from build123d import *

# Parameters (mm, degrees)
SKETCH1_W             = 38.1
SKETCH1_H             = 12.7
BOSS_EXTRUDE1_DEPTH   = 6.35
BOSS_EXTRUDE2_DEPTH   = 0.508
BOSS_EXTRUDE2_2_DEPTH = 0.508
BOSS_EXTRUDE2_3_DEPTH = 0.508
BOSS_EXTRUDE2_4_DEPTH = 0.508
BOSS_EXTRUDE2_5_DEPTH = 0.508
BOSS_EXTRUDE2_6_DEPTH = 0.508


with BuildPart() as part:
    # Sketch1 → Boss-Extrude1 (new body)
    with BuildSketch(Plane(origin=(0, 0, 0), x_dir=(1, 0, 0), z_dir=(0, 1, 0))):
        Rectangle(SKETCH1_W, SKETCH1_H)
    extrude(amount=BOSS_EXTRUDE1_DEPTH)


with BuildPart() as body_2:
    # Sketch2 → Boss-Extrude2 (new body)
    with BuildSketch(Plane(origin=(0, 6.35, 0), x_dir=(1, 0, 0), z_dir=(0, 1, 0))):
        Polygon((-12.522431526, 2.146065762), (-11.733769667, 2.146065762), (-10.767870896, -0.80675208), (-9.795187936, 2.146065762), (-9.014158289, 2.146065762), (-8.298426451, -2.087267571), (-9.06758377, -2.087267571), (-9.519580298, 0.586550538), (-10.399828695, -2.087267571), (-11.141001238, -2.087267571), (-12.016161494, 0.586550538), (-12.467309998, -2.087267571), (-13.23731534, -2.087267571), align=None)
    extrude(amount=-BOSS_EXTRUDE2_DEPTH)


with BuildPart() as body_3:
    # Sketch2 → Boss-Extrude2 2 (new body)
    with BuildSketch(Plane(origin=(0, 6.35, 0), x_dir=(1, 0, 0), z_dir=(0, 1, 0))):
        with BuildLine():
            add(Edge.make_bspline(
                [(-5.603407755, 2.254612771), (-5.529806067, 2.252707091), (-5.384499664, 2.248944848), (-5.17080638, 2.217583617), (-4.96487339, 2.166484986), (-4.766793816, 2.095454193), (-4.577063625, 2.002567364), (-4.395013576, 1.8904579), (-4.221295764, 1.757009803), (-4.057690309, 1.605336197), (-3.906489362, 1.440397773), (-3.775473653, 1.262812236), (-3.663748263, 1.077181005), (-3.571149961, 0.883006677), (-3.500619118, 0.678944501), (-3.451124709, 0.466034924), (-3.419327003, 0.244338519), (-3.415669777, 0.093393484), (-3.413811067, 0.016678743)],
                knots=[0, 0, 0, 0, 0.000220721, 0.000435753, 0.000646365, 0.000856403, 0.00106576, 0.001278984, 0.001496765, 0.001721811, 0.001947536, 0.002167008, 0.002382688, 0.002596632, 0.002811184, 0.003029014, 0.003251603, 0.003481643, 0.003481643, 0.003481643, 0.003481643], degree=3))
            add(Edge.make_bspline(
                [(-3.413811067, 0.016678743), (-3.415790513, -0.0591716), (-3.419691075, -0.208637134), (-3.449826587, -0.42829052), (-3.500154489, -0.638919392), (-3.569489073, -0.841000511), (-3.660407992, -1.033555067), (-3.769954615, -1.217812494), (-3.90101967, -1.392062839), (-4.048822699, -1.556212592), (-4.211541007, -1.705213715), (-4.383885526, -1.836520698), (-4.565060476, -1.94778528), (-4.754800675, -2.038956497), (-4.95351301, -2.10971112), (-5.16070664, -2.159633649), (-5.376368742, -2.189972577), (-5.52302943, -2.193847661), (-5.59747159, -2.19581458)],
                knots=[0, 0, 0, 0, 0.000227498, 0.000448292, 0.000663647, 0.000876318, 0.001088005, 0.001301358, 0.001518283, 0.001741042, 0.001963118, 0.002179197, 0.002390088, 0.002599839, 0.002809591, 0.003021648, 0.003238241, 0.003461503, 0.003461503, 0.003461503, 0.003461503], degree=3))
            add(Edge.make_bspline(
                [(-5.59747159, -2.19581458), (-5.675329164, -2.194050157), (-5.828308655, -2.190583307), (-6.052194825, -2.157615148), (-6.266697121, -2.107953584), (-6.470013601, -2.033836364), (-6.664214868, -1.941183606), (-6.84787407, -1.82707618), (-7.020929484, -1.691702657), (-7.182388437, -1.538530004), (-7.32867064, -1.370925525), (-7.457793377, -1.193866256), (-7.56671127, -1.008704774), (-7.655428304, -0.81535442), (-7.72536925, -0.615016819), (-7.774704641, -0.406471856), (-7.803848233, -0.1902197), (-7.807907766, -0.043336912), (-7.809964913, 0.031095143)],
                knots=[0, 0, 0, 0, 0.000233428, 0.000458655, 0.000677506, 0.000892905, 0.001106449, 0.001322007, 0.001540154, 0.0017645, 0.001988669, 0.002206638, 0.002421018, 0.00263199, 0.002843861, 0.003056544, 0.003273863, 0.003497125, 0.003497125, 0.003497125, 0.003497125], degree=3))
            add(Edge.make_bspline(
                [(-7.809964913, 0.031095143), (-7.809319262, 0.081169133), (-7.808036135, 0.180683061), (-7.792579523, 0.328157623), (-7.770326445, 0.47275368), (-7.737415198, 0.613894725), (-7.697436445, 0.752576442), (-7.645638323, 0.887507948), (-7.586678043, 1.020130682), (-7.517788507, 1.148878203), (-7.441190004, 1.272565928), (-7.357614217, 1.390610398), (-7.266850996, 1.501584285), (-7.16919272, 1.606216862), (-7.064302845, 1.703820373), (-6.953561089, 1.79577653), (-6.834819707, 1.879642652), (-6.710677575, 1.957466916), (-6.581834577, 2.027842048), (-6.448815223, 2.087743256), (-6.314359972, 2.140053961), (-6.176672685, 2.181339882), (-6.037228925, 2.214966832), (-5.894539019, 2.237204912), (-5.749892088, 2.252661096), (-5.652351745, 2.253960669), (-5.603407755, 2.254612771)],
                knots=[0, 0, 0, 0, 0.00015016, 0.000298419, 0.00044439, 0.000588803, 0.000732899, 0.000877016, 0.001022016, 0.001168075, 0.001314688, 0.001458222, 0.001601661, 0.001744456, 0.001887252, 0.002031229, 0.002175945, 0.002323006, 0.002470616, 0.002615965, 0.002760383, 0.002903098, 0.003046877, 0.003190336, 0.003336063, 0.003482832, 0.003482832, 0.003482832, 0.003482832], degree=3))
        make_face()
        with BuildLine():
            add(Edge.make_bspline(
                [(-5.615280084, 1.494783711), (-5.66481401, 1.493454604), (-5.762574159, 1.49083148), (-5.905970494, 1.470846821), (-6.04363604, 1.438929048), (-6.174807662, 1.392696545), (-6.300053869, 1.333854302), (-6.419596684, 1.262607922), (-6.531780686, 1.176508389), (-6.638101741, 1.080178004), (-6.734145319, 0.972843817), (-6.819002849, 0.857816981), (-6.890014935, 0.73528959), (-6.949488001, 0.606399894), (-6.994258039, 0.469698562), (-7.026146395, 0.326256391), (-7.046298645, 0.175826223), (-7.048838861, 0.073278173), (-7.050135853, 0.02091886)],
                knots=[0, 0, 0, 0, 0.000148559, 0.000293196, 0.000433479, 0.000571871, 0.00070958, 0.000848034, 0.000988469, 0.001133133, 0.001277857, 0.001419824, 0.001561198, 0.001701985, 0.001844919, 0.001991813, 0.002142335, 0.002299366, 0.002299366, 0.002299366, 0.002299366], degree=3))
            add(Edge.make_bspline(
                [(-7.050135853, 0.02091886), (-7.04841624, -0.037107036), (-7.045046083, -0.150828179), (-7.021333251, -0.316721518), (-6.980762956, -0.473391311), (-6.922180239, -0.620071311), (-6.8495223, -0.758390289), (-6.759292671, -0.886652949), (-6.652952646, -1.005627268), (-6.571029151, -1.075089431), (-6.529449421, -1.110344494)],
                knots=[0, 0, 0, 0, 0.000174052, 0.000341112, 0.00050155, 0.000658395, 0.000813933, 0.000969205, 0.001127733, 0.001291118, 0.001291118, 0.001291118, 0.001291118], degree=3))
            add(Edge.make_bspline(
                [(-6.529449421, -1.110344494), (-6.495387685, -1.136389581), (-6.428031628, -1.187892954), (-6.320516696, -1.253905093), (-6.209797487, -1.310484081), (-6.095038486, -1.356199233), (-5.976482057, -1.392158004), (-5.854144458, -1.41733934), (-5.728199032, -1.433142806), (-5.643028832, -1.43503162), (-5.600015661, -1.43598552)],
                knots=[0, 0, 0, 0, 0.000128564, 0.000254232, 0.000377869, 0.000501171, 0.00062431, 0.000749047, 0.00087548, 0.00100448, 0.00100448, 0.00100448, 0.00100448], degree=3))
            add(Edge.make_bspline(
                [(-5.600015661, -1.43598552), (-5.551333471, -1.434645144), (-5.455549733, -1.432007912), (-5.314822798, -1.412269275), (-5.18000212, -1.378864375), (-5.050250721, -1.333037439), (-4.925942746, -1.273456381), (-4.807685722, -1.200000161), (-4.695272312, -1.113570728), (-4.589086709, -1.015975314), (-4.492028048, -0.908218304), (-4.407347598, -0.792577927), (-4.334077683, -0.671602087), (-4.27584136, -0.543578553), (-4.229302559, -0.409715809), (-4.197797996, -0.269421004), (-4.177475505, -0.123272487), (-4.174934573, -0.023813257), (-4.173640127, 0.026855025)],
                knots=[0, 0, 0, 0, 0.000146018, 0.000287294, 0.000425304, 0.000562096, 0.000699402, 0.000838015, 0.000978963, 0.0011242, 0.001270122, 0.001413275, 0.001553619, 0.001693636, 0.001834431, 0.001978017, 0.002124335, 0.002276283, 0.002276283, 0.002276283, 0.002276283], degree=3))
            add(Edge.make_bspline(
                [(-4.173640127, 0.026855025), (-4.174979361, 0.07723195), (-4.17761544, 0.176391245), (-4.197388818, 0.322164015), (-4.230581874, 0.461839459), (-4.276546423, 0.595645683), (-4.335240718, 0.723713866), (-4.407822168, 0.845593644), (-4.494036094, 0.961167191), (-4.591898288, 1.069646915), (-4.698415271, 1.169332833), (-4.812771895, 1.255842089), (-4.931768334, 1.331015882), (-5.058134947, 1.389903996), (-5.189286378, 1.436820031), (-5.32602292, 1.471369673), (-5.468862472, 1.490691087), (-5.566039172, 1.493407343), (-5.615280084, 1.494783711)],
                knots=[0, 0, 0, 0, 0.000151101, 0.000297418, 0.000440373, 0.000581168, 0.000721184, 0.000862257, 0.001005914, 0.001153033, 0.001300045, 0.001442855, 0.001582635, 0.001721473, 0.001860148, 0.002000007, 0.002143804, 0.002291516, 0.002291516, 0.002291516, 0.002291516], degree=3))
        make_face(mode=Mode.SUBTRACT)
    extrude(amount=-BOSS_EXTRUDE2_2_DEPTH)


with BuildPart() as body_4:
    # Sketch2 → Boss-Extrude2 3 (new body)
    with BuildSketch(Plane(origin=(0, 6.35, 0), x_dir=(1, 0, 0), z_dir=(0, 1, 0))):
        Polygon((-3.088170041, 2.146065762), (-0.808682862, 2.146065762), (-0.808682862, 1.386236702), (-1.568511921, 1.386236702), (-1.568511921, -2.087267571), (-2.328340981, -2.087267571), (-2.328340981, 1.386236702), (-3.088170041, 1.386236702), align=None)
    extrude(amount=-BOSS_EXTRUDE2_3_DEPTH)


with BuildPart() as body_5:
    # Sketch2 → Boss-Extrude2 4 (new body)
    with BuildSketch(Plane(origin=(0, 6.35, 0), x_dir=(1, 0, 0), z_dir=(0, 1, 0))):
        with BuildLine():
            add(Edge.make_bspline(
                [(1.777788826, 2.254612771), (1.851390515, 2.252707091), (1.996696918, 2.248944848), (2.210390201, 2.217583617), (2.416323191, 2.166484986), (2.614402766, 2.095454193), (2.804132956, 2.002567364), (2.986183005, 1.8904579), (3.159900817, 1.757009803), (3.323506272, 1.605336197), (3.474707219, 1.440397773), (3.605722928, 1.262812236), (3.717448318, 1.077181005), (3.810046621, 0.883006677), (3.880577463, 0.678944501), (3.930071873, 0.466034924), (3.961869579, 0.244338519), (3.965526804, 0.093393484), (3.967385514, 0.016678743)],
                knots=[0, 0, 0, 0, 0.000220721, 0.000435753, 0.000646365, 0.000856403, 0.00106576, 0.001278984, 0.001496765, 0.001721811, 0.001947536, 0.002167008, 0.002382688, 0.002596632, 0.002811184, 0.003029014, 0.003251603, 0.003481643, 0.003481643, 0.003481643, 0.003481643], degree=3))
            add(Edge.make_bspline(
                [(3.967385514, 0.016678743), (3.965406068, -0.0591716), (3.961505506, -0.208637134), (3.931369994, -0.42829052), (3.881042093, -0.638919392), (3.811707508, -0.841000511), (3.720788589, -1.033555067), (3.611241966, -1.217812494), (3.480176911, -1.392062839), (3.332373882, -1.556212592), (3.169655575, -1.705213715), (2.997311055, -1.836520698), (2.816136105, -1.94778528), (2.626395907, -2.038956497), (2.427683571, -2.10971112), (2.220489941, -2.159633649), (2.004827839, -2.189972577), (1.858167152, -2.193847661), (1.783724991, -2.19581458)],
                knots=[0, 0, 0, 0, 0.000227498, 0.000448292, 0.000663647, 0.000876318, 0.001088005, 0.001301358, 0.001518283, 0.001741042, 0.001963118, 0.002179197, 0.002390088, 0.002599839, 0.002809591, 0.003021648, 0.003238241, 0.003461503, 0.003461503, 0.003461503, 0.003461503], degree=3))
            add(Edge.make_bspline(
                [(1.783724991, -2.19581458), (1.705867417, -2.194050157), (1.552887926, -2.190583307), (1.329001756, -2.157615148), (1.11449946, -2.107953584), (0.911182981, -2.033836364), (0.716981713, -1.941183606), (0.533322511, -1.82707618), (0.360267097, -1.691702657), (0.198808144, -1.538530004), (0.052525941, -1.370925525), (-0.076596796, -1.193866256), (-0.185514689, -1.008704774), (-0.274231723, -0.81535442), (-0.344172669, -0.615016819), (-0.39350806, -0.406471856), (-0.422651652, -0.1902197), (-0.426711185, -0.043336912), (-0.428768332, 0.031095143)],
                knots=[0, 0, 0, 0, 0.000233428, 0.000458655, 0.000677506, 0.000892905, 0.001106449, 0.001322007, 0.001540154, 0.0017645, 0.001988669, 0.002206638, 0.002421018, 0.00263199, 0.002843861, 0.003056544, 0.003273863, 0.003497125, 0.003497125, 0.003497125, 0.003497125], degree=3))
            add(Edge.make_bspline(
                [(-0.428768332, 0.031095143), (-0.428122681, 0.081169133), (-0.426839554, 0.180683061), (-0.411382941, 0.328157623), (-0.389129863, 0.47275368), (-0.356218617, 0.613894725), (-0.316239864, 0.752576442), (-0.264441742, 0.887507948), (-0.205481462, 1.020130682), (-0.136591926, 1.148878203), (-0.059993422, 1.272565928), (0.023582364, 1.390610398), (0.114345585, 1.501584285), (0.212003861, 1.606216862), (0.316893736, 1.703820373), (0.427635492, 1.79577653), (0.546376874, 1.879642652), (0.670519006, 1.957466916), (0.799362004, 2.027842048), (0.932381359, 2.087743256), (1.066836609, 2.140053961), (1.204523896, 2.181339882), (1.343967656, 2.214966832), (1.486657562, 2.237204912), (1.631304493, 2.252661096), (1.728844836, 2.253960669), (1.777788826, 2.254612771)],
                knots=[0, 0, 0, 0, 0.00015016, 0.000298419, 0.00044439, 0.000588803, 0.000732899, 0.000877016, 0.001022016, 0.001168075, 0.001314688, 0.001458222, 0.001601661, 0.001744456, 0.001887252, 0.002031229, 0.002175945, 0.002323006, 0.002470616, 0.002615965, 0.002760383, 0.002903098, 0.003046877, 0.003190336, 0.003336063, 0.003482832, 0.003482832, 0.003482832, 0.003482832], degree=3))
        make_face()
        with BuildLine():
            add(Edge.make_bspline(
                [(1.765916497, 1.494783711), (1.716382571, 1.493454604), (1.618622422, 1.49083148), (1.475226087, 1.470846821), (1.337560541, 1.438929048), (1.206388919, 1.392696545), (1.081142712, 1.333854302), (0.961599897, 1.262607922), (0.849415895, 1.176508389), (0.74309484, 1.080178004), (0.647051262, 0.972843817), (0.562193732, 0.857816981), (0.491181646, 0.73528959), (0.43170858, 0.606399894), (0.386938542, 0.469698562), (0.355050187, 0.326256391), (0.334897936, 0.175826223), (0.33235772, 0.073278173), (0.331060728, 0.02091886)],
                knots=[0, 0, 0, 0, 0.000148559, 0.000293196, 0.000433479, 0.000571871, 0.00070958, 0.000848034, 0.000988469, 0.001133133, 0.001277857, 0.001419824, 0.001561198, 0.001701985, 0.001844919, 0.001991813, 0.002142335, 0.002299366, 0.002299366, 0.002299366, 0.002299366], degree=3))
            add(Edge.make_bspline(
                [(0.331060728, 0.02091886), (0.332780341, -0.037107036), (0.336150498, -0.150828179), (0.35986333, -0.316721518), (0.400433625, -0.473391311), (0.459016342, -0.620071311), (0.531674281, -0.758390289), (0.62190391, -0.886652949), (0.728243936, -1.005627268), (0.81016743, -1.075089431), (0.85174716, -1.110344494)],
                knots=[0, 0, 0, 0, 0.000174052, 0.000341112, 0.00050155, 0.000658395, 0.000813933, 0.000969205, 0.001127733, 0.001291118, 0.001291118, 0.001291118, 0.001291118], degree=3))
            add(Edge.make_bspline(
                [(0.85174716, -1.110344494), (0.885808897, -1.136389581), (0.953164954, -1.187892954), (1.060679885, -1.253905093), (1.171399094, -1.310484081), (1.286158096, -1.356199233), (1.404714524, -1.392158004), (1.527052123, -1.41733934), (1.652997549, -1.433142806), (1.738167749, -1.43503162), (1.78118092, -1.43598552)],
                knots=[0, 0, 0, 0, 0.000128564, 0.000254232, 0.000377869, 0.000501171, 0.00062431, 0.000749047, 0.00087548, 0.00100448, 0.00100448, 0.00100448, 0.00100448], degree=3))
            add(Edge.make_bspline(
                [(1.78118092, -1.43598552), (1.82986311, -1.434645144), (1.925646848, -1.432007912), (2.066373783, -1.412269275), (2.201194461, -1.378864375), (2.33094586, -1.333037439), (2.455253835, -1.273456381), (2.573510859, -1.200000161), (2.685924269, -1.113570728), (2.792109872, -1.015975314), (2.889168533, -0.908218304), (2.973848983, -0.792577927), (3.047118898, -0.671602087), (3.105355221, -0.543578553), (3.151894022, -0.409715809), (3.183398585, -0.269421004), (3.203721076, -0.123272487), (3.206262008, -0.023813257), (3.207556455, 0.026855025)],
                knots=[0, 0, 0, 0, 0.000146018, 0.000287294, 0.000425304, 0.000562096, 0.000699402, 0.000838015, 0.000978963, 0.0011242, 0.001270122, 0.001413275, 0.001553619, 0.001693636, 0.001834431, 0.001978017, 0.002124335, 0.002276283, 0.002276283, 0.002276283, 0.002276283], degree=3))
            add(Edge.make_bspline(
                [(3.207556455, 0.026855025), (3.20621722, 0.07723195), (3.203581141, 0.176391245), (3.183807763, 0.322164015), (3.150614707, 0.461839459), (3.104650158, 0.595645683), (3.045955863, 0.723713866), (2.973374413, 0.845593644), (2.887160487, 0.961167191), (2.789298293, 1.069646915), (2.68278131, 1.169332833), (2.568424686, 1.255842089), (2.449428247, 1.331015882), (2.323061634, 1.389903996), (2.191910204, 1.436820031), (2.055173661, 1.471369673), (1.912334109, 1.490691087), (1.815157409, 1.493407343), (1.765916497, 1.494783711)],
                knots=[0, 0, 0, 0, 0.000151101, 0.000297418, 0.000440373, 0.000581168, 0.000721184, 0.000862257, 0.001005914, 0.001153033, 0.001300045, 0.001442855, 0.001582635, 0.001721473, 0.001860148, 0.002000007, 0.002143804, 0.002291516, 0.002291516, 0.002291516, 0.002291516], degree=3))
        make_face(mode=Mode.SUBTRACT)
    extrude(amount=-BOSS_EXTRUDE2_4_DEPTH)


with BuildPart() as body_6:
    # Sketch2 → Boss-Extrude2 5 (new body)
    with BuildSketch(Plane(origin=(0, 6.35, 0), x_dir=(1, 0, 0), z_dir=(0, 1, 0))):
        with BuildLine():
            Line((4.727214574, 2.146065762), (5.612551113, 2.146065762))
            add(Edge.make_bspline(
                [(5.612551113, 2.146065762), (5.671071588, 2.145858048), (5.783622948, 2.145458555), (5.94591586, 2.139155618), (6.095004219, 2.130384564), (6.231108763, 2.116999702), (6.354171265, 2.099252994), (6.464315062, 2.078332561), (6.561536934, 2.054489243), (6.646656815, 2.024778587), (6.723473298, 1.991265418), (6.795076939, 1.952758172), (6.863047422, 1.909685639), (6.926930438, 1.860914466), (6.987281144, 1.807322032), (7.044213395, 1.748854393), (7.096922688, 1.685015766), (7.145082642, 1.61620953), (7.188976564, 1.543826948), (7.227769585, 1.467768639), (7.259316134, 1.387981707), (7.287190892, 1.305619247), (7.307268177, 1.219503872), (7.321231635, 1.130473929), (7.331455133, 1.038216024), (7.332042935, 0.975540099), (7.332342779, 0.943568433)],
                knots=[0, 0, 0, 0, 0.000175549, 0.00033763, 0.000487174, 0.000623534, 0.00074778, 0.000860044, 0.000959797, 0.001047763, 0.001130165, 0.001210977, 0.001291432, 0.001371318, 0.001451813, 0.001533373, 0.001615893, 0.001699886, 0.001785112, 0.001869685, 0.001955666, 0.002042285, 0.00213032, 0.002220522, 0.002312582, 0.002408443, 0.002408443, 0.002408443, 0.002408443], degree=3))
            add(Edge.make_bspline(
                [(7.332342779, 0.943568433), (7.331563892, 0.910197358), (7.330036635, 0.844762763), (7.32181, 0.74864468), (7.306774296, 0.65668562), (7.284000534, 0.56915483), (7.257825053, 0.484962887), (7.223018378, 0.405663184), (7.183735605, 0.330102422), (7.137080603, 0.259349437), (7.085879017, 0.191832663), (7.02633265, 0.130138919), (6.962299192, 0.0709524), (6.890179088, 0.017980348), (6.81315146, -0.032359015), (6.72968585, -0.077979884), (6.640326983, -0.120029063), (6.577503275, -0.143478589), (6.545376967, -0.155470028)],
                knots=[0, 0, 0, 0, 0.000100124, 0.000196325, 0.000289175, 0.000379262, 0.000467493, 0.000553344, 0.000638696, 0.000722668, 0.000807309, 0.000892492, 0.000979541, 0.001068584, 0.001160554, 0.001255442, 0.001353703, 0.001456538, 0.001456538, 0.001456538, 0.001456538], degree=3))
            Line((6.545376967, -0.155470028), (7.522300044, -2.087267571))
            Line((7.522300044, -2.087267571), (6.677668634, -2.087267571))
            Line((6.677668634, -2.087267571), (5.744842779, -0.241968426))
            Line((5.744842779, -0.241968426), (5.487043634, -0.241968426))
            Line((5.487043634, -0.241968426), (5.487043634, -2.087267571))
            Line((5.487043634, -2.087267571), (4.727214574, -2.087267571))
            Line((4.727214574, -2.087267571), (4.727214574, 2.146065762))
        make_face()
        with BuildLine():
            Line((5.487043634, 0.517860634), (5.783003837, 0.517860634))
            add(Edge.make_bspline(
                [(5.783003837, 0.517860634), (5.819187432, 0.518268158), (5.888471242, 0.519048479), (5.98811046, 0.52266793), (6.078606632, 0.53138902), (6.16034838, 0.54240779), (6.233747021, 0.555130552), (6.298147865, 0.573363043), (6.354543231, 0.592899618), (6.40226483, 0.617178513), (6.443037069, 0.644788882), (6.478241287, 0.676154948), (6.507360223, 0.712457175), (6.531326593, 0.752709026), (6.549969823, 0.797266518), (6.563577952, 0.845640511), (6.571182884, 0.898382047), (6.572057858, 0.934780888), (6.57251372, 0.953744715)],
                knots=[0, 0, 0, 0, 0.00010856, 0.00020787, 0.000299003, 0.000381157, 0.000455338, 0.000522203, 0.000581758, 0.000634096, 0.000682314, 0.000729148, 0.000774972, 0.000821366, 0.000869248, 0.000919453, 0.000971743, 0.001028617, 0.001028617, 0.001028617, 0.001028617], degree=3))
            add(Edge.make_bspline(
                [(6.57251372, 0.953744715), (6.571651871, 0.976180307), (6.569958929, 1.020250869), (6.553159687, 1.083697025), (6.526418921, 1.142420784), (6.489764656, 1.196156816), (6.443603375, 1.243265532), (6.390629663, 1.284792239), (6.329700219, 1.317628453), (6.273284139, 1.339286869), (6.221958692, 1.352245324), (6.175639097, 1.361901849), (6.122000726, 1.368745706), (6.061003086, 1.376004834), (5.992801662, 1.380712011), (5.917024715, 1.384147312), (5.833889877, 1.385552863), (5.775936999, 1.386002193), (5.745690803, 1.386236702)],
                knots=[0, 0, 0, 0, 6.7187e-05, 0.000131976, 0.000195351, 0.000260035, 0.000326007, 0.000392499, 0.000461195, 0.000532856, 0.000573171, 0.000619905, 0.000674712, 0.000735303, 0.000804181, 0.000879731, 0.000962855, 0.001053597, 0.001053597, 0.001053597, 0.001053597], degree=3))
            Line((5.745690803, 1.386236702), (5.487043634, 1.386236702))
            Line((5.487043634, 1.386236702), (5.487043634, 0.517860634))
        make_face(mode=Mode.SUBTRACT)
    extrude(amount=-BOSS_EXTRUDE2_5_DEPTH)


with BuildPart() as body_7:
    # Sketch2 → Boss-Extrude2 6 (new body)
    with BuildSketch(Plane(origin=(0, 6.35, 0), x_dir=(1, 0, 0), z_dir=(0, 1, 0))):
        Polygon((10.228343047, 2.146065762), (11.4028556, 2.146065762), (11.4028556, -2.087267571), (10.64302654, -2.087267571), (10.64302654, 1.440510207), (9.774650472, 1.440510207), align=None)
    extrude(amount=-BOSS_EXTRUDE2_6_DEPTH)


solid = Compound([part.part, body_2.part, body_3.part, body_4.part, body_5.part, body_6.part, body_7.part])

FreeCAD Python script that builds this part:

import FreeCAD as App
import Part
import Sketcher

V = App.Vector
Q = App.Units.Quantity

doc = App.newDocument("Part")
params = doc.addObject("Spreadsheet::Sheet", "Params")
for row, (alias, value) in enumerate([
    ("sketch1_width", "1.5 in"),
    ("sketch1_height", "0.5 in"),
    ("pad1_length", "0.25 in"),
    ("pad2_length", "0.02 in"),
    ("pad3_length", "0.02 in"),
    ("pad4_length", "0.02 in"),
    ("pad5_length", "0.02 in"),
    ("pad6_length", "0.02 in"),
    ("pad7_length", "0.02 in"),
], start=1):
    params.set(f"A{row}", alias)
    params.set(f"B{row}", "=" + value)
    params.setAlias(f"B{row}", alias)

body = doc.addObject("PartDesign::Body", "Body")

sketch1 = doc.addObject("Sketcher::SketchObject", "Sketch")
body.addObject(sketch1)
sketch1.AttachmentSupport = (doc.XZ_Plane, [""])
sketch1.MapMode = "FlatFace"
sketch1.addGeometry([
    Part.LineSegment(V(-19, -6, 0), V(-19, 6, 0)),
    Part.LineSegment(V(-19, 6, 0), V(19, 6, 0)),
    Part.LineSegment(V(19, 6, 0), V(19, -6, 0)),
    Part.LineSegment(V(19, -6, 0), V(-19, -6, 0)),
], False)
sketch1.addConstraint([
    Sketcher.Constraint("Coincident", 0, 2, 1, 1),
    Sketcher.Constraint("Coincident", 1, 2, 2, 1),
    Sketcher.Constraint("Coincident", 2, 2, 3, 1),
    Sketcher.Constraint("Coincident", 3, 2, 0, 1),
    Sketcher.Constraint("Vertical", 0),
    Sketcher.Constraint("Horizontal", 1),
    Sketcher.Constraint("Vertical", 2),
    Sketcher.Constraint("Horizontal", 3),
    Sketcher.Constraint("Symmetric", 0, 2, 2, 2, -1, 1),
    Sketcher.Constraint("DistanceX", 1, 1, 1, 2, Q("1.5 in")),
    Sketcher.Constraint("DistanceY", 0, 1, 0, 2, Q("0.5 in")),
])
sketch1.setExpression("Constraints[9]", "Params.sketch1_width")
sketch1.setExpression("Constraints[10]", "Params.sketch1_height")
pad1 = doc.addObject("PartDesign::Pad", "Pad")
body.addObject(pad1)
pad1.Profile = sketch1
pad1.setExpression("Length", "Params.pad1_length")
pad1.Reversed = True
body2 = doc.addObject("PartDesign::Body", "Body001")

sketch2 = doc.addObject("Sketcher::SketchObject", "Sketch001")
body2.addObject(sketch2)
sketch2.AttachmentSupport = (doc.getObject("XZ_Plane001"), [""])
sketch2.MapMode = "FlatFace"
sketch2.AttachmentOffset = App.Placement(V(0, 0, -0.25 * 25.4), App.Rotation())
sketch2.addGeometry([
    Part.LineSegment(V(-11.7, -2.1, 0), V(-12.5, -2.1, 0)),
    Part.LineSegment(V(-12.5, -2.1, 0), V(-13.2, 2.1, 0)),
    Part.LineSegment(V(-13.2, 2.1, 0), V(-12.5, 2.1, 0)),
    Part.LineSegment(V(-12.5, 2.1, 0), V(-12, -0.6, 0)),
    Part.LineSegment(V(-12, -0.6, 0), V(-11.1, 2.1, 0)),
    Part.LineSegment(V(-11.1, 2.1, 0), V(-10.4, 2.1, 0)),
    Part.LineSegment(V(-10.4, 2.1, 0), V(-9.5, -0.6, 0)),
    Part.LineSegment(V(-9.5, -0.6, 0), V(-9.1, 2.1, 0)),
    Part.LineSegment(V(-9.1, 2.1, 0), V(-8.3, 2.1, 0)),
    Part.LineSegment(V(-8.3, 2.1, 0), V(-9, -2.1, 0)),
    Part.LineSegment(V(-9, -2.1, 0), V(-9.8, -2.1, 0)),
    Part.LineSegment(V(-9.8, -2.1, 0), V(-10.8, 0.8, 0)),
    Part.LineSegment(V(-10.8, 0.8, 0), V(-11.7, -2.1, 0)),
], False)
sketch2.addConstraint([
    Sketcher.Constraint("Coincident", 0, 2, 1, 1),
    Sketcher.Constraint("Coincident", 1, 2, 2, 1),
    Sketcher.Constraint("Coincident", 2, 2, 3, 1),
    Sketcher.Constraint("Coincident", 3, 2, 4, 1),
    Sketcher.Constraint("Coincident", 4, 2, 5, 1),
    Sketcher.Constraint("Coincident", 5, 2, 6, 1),
    Sketcher.Constraint("Coincident", 6, 2, 7, 1),
    Sketcher.Constraint("Coincident", 7, 2, 8, 1),
    Sketcher.Constraint("Coincident", 8, 2, 9, 1),
    Sketcher.Constraint("Coincident", 9, 2, 10, 1),
    Sketcher.Constraint("Coincident", 10, 2, 11, 1),
    Sketcher.Constraint("Coincident", 11, 2, 12, 1),
    Sketcher.Constraint("Coincident", 12, 2, 0, 1),
    Sketcher.Constraint("Horizontal", 0),
    Sketcher.Constraint("Horizontal", 2),
    Sketcher.Constraint("Horizontal", 5),
    Sketcher.Constraint("Horizontal", 8),
    Sketcher.Constraint("Horizontal", 10),
    Sketcher.Constraint("Horizontal", 2, 2, 4, 2),
    Sketcher.Constraint("Horizontal", 3, 2, 6, 2),
    Sketcher.Constraint("Horizontal", 5, 2, 7, 2),
    Sketcher.Constraint("Horizontal", 0, 2, 9, 2),
    Sketcher.Constraint("Distance", 4, 2.813398),
    Sketcher.Constraint("DistanceX", 0, 2, 0, 1, 0.788662),
    Sketcher.Constraint("DistanceX", 10, 2, 10, 1, 0.78103),
    Sketcher.Constraint("DistanceX", 4, 2, -1, 1, 11.141001),
    Sketcher.Constraint("Distance", 1, 4.29327),
    Sketcher.Constraint("Distance", 3, 2.711612),
    Sketcher.Constraint("Distance", 9, 4.293412),
    Sketcher.Constraint("Distance", 12, 3.106782),
    Sketcher.Constraint("DistanceX", 2, 1, 2, 2, 0.770005),
    Sketcher.Constraint("DistanceX", 5, 1, 5, 2, 0.741173),
    Sketcher.Constraint("DistanceX", 8, 1, 8, 2, 0.769157),
    Sketcher.Constraint("DistanceX", 0, 2, -1, 1, 12.522432),
    Sketcher.Constraint("DistanceX", 2, 2, -1, 1, 12.46731),
    Sketcher.Constraint("DistanceY", 3, 2, -1, 1, 0.586551),
    Sketcher.Constraint("DistanceX", 6, 2, -1, 1, 9.51958),
    Sketcher.Constraint("DistanceX", 9, 2, -1, 1, 9.014158),
    Sketcher.Constraint("DistanceX", 11, 2, -1, 1, 10.767871),
])
pad2 = doc.addObject("PartDesign::Pad", "Pad001")
body2.addObject(pad2)
pad2.Profile = sketch2
pad2.setExpression("Length", "Params.pad2_length")
body3 = doc.addObject("PartDesign::Body", "Body002")

sketch3 = doc.addObject("Sketcher::SketchObject", "Sketch002")
body3.addObject(sketch3)
sketch3.AttachmentSupport = (doc.getObject("XZ_Plane002"), [""])
sketch3.MapMode = "FlatFace"
sketch3.AttachmentOffset = App.Placement(V(0, 0, -0.25 * 25.4), App.Rotation())
sketch3.addGeometry([
    Part.BSplineCurve([V(-5.603408, -2.254613, 0), V(-5.529806, -2.252707, 0), V(-5.3845, -2.248945, 0), V(-5.170806, -2.217584, 0), V(-4.964873, -2.166485, 0), V(-4.766794, -2.095454, 0), V(-4.577064, -2.002567, 0), V(-4.395014, -1.890458, 0), V(-4.221296, -1.75701, 0), V(-4.05769, -1.605336, 0), V(-3.906489, -1.440398, 0), V(-3.775474, -1.262812, 0), V(-3.663748, -1.077181, 0), V(-3.57115, -0.883007, 0), V(-3.500619, -0.678945, 0), V(-3.451125, -0.466035, 0), V(-3.419327, -0.244339, 0), V(-3.41567, -0.093393, 0), V(-3.413811, -0.016679, 0)], [4, 1, 1, 1, 1, 1, 1, 1, 1, 1, 1, 1, 1, 1, 1, 1, 4], [0, 0.000220721, 0.000435753, 0.000646365, 0.000856403, 0.00106576, 0.001278984, 0.001496765, 0.001721811, 0.001947536, 0.002167008, 0.002382688, 0.002596632, 0.002811184, 0.003029014, 0.003251603, 0.003481643], False, 3, [1, 1, 1, 1, 1, 1, 1, 1, 1, 1, 1, 1, 1, 1, 1, 1, 1, 1, 1], False),
    Part.BSplineCurve([V(-7.809965, -0.031095, 0), V(-7.809319, -0.081169, 0), V(-7.808036, -0.180683, 0), V(-7.79258, -0.328158, 0), V(-7.770326, -0.472754, 0), V(-7.737415, -0.613895, 0), V(-7.697436, -0.752576, 0), V(-7.645638, -0.887508, 0), V(-7.586678, -1.020131, 0), V(-7.517789, -1.148878, 0), V(-7.44119, -1.272566, 0), V(-7.357614, -1.39061, 0), V(-7.266851, -1.501584, 0), V(-7.169193, -1.606217, 0), V(-7.064303, -1.70382, 0), V(-6.953561, -1.795777, 0), V(-6.83482, -1.879643, 0), V(-6.710678, -1.957467, 0), V(-6.581835, -2.027842, 0), V(-6.448815, -2.087743, 0), V(-6.31436, -2.140054, 0), V(-6.176673, -2.18134, 0), V(-6.037229, -2.214967, 0), V(-5.894539, -2.237205, 0), V(-5.749892, -2.252661, 0), V(-5.652352, -2.253961, 0), V(-5.603408, -2.254613, 0)], [4, 1, 1, 1, 1, 1, 1, 1, 1, 1, 1, 1, 1, 1, 1, 1, 1, 1, 1, 1, 1, 1, 1, 1, 4], [0, 0.00015016, 0.000298419, 0.00044439, 0.000588803, 0.000732899, 0.000877016, 0.001022016, 0.001168075, 0.001314688, 0.001458222, 0.001601661, 0.001744456, 0.001887252, 0.002031229, 0.002175945, 0.002323006, 0.002470616, 0.002615965, 0.002760383, 0.002903098, 0.003046877, 0.003190336, 0.003336063, 0.003482832], False, 3, [1, 1, 1, 1, 1, 1, 1, 1, 1, 1, 1, 1, 1, 1, 1, 1, 1, 1, 1, 1, 1, 1, 1, 1, 1, 1, 1], False),
    Part.BSplineCurve([V(-5.597472, 2.195815, 0), V(-5.675329, 2.19405, 0), V(-5.828309, 2.190583, 0), V(-6.052195, 2.157615, 0), V(-6.266697, 2.107954, 0), V(-6.470014, 2.033836, 0), V(-6.664215, 1.941184, 0), V(-6.847874, 1.827076, 0), V(-7.020929, 1.691703, 0), V(-7.182388, 1.53853, 0), V(-7.328671, 1.370926, 0), V(-7.457793, 1.193866, 0), V(-7.566711, 1.008705, 0), V(-7.655428, 0.815354, 0), V(-7.725369, 0.615017, 0), V(-7.774705, 0.406472, 0), V(-7.803848, 0.19022, 0), V(-7.807908, 0.043337, 0), V(-7.809965, -0.031095, 0)], [4, 1, 1, 1, 1, 1, 1, 1, 1, 1, 1, 1, 1, 1, 1, 1, 4], [0, 0.000233428, 0.000458655, 0.000677506, 0.000892905, 0.001106449, 0.001322007, 0.001540154, 0.0017645, 0.001988669, 0.002206638, 0.002421018, 0.00263199, 0.002843861, 0.003056544, 0.003273863, 0.003497125], False, 3, [1, 1, 1, 1, 1, 1, 1, 1, 1, 1, 1, 1, 1, 1, 1, 1, 1, 1, 1], False),
    Part.BSplineCurve([V(-3.413811, -0.016679, 0), V(-3.415791, 0.059172, 0), V(-3.419691, 0.208637, 0), V(-3.449827, 0.428291, 0), V(-3.500154, 0.638919, 0), V(-3.569489, 0.841001, 0), V(-3.660408, 1.033555, 0), V(-3.769955, 1.217812, 0), V(-3.90102, 1.392063, 0), V(-4.048823, 1.556213, 0), V(-4.211541, 1.705214, 0), V(-4.383886, 1.836521, 0), V(-4.56506, 1.947785, 0), V(-4.754801, 2.038956, 0), V(-4.953513, 2.109711, 0), V(-5.160707, 2.159634, 0), V(-5.376369, 2.189973, 0), V(-5.523029, 2.193848, 0), V(-5.597472, 2.195815, 0)], [4, 1, 1, 1, 1, 1, 1, 1, 1, 1, 1, 1, 1, 1, 1, 1, 4], [0, 0.000227498, 0.000448292, 0.000663647, 0.000876318, 0.001088005, 0.001301358, 0.001518283, 0.001741042, 0.001963118, 0.002179197, 0.002390088, 0.002599839, 0.002809591, 0.003021648, 0.003238241, 0.003461503], False, 3, [1, 1, 1, 1, 1, 1, 1, 1, 1, 1, 1, 1, 1, 1, 1, 1, 1, 1, 1], False),
    Part.BSplineCurve([V(-4.17364, -0.026855, 0), V(-4.174979, -0.077232, 0), V(-4.177615, -0.176391, 0), V(-4.197389, -0.322164, 0), V(-4.230582, -0.461839, 0), V(-4.276546, -0.595646, 0), V(-4.335241, -0.723714, 0), V(-4.407822, -0.845594, 0), V(-4.494036, -0.961167, 0), V(-4.591898, -1.069647, 0), V(-4.698415, -1.169333, 0), V(-4.812772, -1.255842, 0), V(-4.931768, -1.331016, 0), V(-5.058135, -1.389904, 0), V(-5.189286, -1.43682, 0), V(-5.326023, -1.47137, 0), V(-5.468862, -1.490691, 0), V(-5.566039, -1.493407, 0), V(-5.61528, -1.494784, 0)], [4, 1, 1, 1, 1, 1, 1, 1, 1, 1, 1, 1, 1, 1, 1, 1, 4], [0, 0.000151101, 0.000297418, 0.000440373, 0.000581168, 0.000721184, 0.000862257, 0.001005914, 0.001153033, 0.001300045, 0.001442855, 0.001582635, 0.001721473, 0.001860148, 0.002000007, 0.002143804, 0.002291516], False, 3, [1, 1, 1, 1, 1, 1, 1, 1, 1, 1, 1, 1, 1, 1, 1, 1, 1, 1, 1], False),
    Part.BSplineCurve([V(-5.600016, 1.435986, 0), V(-5.551333, 1.434645, 0), V(-5.45555, 1.432008, 0), V(-5.314823, 1.412269, 0), V(-5.180002, 1.378864, 0), V(-5.050251, 1.333037, 0), V(-4.925943, 1.273456, 0), V(-4.807686, 1.2, 0), V(-4.695272, 1.113571, 0), V(-4.589087, 1.015975, 0), V(-4.492028, 0.908218, 0), V(-4.407348, 0.792578, 0), V(-4.334078, 0.671602, 0), V(-4.275841, 0.543579, 0), V(-4.229303, 0.409716, 0), V(-4.197798, 0.269421, 0), V(-4.177476, 0.123272, 0), V(-4.174935, 0.023813, 0), V(-4.17364, -0.026855, 0)], [4, 1, 1, 1, 1, 1, 1, 1, 1, 1, 1, 1, 1, 1, 1, 1, 4], [0, 0.000146018, 0.000287294, 0.000425304, 0.000562096, 0.000699402, 0.000838015, 0.000978963, 0.0011242, 0.001270122, 0.001413275, 0.001553619, 0.001693636, 0.001834431, 0.001978017, 0.002124335, 0.002276283], False, 3, [1, 1, 1, 1, 1, 1, 1, 1, 1, 1, 1, 1, 1, 1, 1, 1, 1, 1, 1], False),
    Part.BSplineCurve([V(-6.529449, 1.110344, 0), V(-6.495388, 1.13639, 0), V(-6.428032, 1.187893, 0), V(-6.320517, 1.253905, 0), V(-6.209797, 1.310484, 0), V(-6.095038, 1.356199, 0), V(-5.976482, 1.392158, 0), V(-5.854144, 1.417339, 0), V(-5.728199, 1.433143, 0), V(-5.643029, 1.435032, 0), V(-5.600016, 1.435986, 0)], [4, 1, 1, 1, 1, 1, 1, 1, 4], [0, 0.000128564, 0.000254232, 0.000377869, 0.000501171, 0.00062431, 0.000749047, 0.00087548, 0.00100448], False, 3, [1, 1, 1, 1, 1, 1, 1, 1, 1, 1, 1], False),
    Part.BSplineCurve([V(-7.050136, -0.020919, 0), V(-7.048416, 0.037107, 0), V(-7.045046, 0.150828, 0), V(-7.021333, 0.316722, 0), V(-6.980763, 0.473391, 0), V(-6.92218, 0.620071, 0), V(-6.849522, 0.75839, 0), V(-6.759293, 0.886653, 0), V(-6.652953, 1.005627, 0), V(-6.571029, 1.075089, 0), V(-6.529449, 1.110344, 0)], [4, 1, 1, 1, 1, 1, 1, 1, 4], [0, 0.000174052, 0.000341112, 0.00050155, 0.000658395, 0.000813933, 0.000969205, 0.001127733, 0.001291118], False, 3, [1, 1, 1, 1, 1, 1, 1, 1, 1, 1, 1], False),
    Part.BSplineCurve([V(-5.61528, -1.494784, 0), V(-5.664814, -1.493455, 0), V(-5.762574, -1.490831, 0), V(-5.90597, -1.470847, 0), V(-6.043636, -1.438929, 0), V(-6.174808, -1.392697, 0), V(-6.300054, -1.333854, 0), V(-6.419597, -1.262608, 0), V(-6.531781, -1.176508, 0), V(-6.638102, -1.080178, 0), V(-6.734145, -0.972844, 0), V(-6.819003, -0.857817, 0), V(-6.890015, -0.73529, 0), V(-6.949488, -0.6064, 0), V(-6.994258, -0.469699, 0), V(-7.026146, -0.326256, 0), V(-7.046299, -0.175826, 0), V(-7.048839, -0.073278, 0), V(-7.050136, -0.020919, 0)], [4, 1, 1, 1, 1, 1, 1, 1, 1, 1, 1, 1, 1, 1, 1, 1, 4], [0, 0.000148559, 0.000293196, 0.000433479, 0.000571871, 0.00070958, 0.000848034, 0.000988469, 0.001133133, 0.001277857, 0.001419824, 0.001561198, 0.001701985, 0.001844919, 0.001991813, 0.002142335, 0.002299366], False, 3, [1, 1, 1, 1, 1, 1, 1, 1, 1, 1, 1, 1, 1, 1, 1, 1, 1, 1, 1], False),
], False)
sketch3.addConstraint([
    Sketcher.Constraint("Block", 0),
    Sketcher.Constraint("Block", 1),
    Sketcher.Constraint("Block", 2),
    Sketcher.Constraint("Block", 3),
    Sketcher.Constraint("Block", 4),
    Sketcher.Constraint("Block", 5),
    Sketcher.Constraint("Block", 6),
    Sketcher.Constraint("Block", 7),
    Sketcher.Constraint("Block", 8),
])
pad3 = doc.addObject("PartDesign::Pad", "Pad002")
body3.addObject(pad3)
pad3.Profile = sketch3
pad3.setExpression("Length", "Params.pad3_length")
body4 = doc.addObject("PartDesign::Body", "Body003")

sketch4 = doc.addObject("Sketcher::SketchObject", "Sketch003")
body4.addObject(sketch4)
sketch4.AttachmentSupport = (doc.getObject("XZ_Plane003"), [""])
sketch4.MapMode = "FlatFace"
sketch4.AttachmentOffset = App.Placement(V(0, 0, -0.25 * 25.4), App.Rotation())
sketch4.addGeometry([
    Part.LineSegment(V(-0.8, -2.1, 0), V(-3.1, -2.1, 0)),
    Part.LineSegment(V(-3.1, -2.1, 0), V(-3.1, -1.4, 0)),
    Part.LineSegment(V(-3.1, -1.4, 0), V(-2.3, -1.4, 0)),
    Part.LineSegment(V(-2.3, -1.4, 0), V(-2.3, 2.1, 0)),
    Part.LineSegment(V(-2.3, 2.1, 0), V(-1.6, 2.1, 0)),
    Part.LineSegment(V(-1.6, 2.1, 0), V(-1.6, -1.4, 0)),
    Part.LineSegment(V(-1.6, -1.4, 0), V(-0.8, -1.4, 0)),
    Part.LineSegment(V(-0.8, -1.4, 0), V(-0.8, -2.1, 0)),
], False)
sketch4.addConstraint([
    Sketcher.Constraint("Coincident", 0, 2, 1, 1),
    Sketcher.Constraint("Coincident", 1, 2, 2, 1),
    Sketcher.Constraint("Coincident", 2, 2, 3, 1),
    Sketcher.Constraint("Coincident", 3, 2, 4, 1),
    Sketcher.Constraint("Coincident", 4, 2, 5, 1),
    Sketcher.Constraint("Coincident", 5, 2, 6, 1),
    Sketcher.Constraint("Coincident", 6, 2, 7, 1),
    Sketcher.Constraint("Coincident", 7, 2, 0, 1),
    Sketcher.Constraint("Horizontal", 0),
    Sketcher.Constraint("Vertical", 1),
    Sketcher.Constraint("Horizontal", 2),
    Sketcher.Constraint("Vertical", 3),
    Sketcher.Constraint("Horizontal", 4),
    Sketcher.Constraint("Vertical", 5),
    Sketcher.Constraint("Horizontal", 6),
    Sketcher.Constraint("Vertical", 7),
    Sketcher.Constraint("Horizontal", 2, 2, 5, 2),
    Sketcher.Constraint("Equal", 2, 4),
    Sketcher.Constraint("Equal", 4, 6),
    Sketcher.Constraint("Equal", 6, 1),
    Sketcher.Constraint("DistanceX", 2, 1, 2, 2, 0.759829),
    Sketcher.Constraint("DistanceY", 3, 1, 3, 2, 3.473504),
    Sketcher.Constraint("DistanceX", 0, 2, -1, 1, 3.08817),
    Sketcher.Constraint("DistanceY", 0, 2, -1, 1, 2.146066),
])
pad4 = doc.addObject("PartDesign::Pad", "Pad003")
body4.addObject(pad4)
pad4.Profile = sketch4
pad4.setExpression("Length", "Params.pad4_length")
body5 = doc.addObject("PartDesign::Body", "Body004")

sketch5 = doc.addObject("Sketcher::SketchObject", "Sketch004")
body5.addObject(sketch5)
sketch5.AttachmentSupport = (doc.getObject("XZ_Plane004"), [""])
sketch5.MapMode = "FlatFace"
sketch5.AttachmentOffset = App.Placement(V(0, 0, -0.25 * 25.4), App.Rotation())
sketch5.addGeometry([
    Part.BSplineCurve([V(1.777789, -2.254613, 0), V(1.851391, -2.252707, 0), V(1.996697, -2.248945, 0), V(2.21039, -2.217584, 0), V(2.416323, -2.166485, 0), V(2.614403, -2.095454, 0), V(2.804133, -2.002567, 0), V(2.986183, -1.890458, 0), V(3.159901, -1.75701, 0), V(3.323506, -1.605336, 0), V(3.474707, -1.440398, 0), V(3.605723, -1.262812, 0), V(3.717448, -1.077181, 0), V(3.810047, -0.883007, 0), V(3.880577, -0.678945, 0), V(3.930072, -0.466035, 0), V(3.96187, -0.244339, 0), V(3.965527, -0.093393, 0), V(3.967386, -0.016679, 0)], [4, 1, 1, 1, 1, 1, 1, 1, 1, 1, 1, 1, 1, 1, 1, 1, 4], [0, 0.000220721, 0.000435753, 0.000646365, 0.000856403, 0.00106576, 0.001278984, 0.001496765, 0.001721811, 0.001947536, 0.002167008, 0.002382688, 0.002596632, 0.002811184, 0.003029014, 0.003251603, 0.003481643], False, 3, [1, 1, 1, 1, 1, 1, 1, 1, 1, 1, 1, 1, 1, 1, 1, 1, 1, 1, 1], False),
    Part.BSplineCurve([V(-0.428768, -0.031095, 0), V(-0.428123, -0.081169, 0), V(-0.42684, -0.180683, 0), V(-0.411383, -0.328158, 0), V(-0.38913, -0.472754, 0), V(-0.356219, -0.613895, 0), V(-0.31624, -0.752576, 0), V(-0.264442, -0.887508, 0), V(-0.205481, -1.020131, 0), V(-0.136592, -1.148878, 0), V(-0.059993, -1.272566, 0), V(0.023582, -1.39061, 0), V(0.114346, -1.501584, 0), V(0.212004, -1.606217, 0), V(0.316894, -1.70382, 0), V(0.427635, -1.795777, 0), V(0.546377, -1.879643, 0), V(0.670519, -1.957467, 0), V(0.799362, -2.027842, 0), V(0.932381, -2.087743, 0), V(1.066837, -2.140054, 0), V(1.204524, -2.18134, 0), V(1.343968, -2.214967, 0), V(1.486658, -2.237205, 0), V(1.631304, -2.252661, 0), V(1.728845, -2.253961, 0), V(1.777789, -2.254613, 0)], [4, 1, 1, 1, 1, 1, 1, 1, 1, 1, 1, 1, 1, 1, 1, 1, 1, 1, 1, 1, 1, 1, 1, 1, 4], [0, 0.00015016, 0.000298419, 0.00044439, 0.000588803, 0.000732899, 0.000877016, 0.001022016, 0.001168075, 0.001314688, 0.001458222, 0.001601661, 0.001744456, 0.001887252, 0.002031229, 0.002175945, 0.002323006, 0.002470616, 0.002615965, 0.002760383, 0.002903098, 0.003046877, 0.003190336, 0.003336063, 0.003482832], False, 3, [1, 1, 1, 1, 1, 1, 1, 1, 1, 1, 1, 1, 1, 1, 1, 1, 1, 1, 1, 1, 1, 1, 1, 1, 1, 1, 1], False),
    Part.BSplineCurve([V(1.783725, 2.195815, 0), V(1.705867, 2.19405, 0), V(1.552888, 2.190583, 0), V(1.329002, 2.157615, 0), V(1.114499, 2.107954, 0), V(0.911183, 2.033836, 0), V(0.716982, 1.941184, 0), V(0.533323, 1.827076, 0), V(0.360267, 1.691703, 0), V(0.198808, 1.53853, 0), V(0.052526, 1.370926, 0), V(-0.076597, 1.193866, 0), V(-0.185515, 1.008705, 0), V(-0.274232, 0.815354, 0), V(-0.344173, 0.615017, 0), V(-0.393508, 0.406472, 0), V(-0.422652, 0.19022, 0), V(-0.426711, 0.043337, 0), V(-0.428768, -0.031095, 0)], [4, 1, 1, 1, 1, 1, 1, 1, 1, 1, 1, 1, 1, 1, 1, 1, 4], [0, 0.000233428, 0.000458655, 0.000677506, 0.000892905, 0.001106449, 0.001322007, 0.001540154, 0.0017645, 0.001988669, 0.002206638, 0.002421018, 0.00263199, 0.002843861, 0.003056544, 0.003273863, 0.003497125], False, 3, [1, 1, 1, 1, 1, 1, 1, 1, 1, 1, 1, 1, 1, 1, 1, 1, 1, 1, 1], False),
    Part.BSplineCurve([V(3.967386, -0.016679, 0), V(3.965406, 0.059172, 0), V(3.961506, 0.208637, 0), V(3.93137, 0.428291, 0), V(3.881042, 0.638919, 0), V(3.811708, 0.841001, 0), V(3.720789, 1.033555, 0), V(3.611242, 1.217812, 0), V(3.480177, 1.392063, 0), V(3.332374, 1.556213, 0), V(3.169656, 1.705214, 0), V(2.997311, 1.836521, 0), V(2.816136, 1.947785, 0), V(2.626396, 2.038956, 0), V(2.427684, 2.109711, 0), V(2.22049, 2.159634, 0), V(2.004828, 2.189973, 0), V(1.858167, 2.193848, 0), V(1.783725, 2.195815, 0)], [4, 1, 1, 1, 1, 1, 1, 1, 1, 1, 1, 1, 1, 1, 1, 1, 4], [0, 0.000227498, 0.000448292, 0.000663647, 0.000876318, 0.001088005, 0.001301358, 0.001518283, 0.001741042, 0.001963118, 0.002179197, 0.002390088, 0.002599839, 0.002809591, 0.003021648, 0.003238241, 0.003461503], False, 3, [1, 1, 1, 1, 1, 1, 1, 1, 1, 1, 1, 1, 1, 1, 1, 1, 1, 1, 1], False),
    Part.BSplineCurve([V(3.207556, -0.026855, 0), V(3.206217, -0.077232, 0), V(3.203581, -0.176391, 0), V(3.183808, -0.322164, 0), V(3.150615, -0.461839, 0), V(3.10465, -0.595646, 0), V(3.045956, -0.723714, 0), V(2.973374, -0.845594, 0), V(2.88716, -0.961167, 0), V(2.789298, -1.069647, 0), V(2.682781, -1.169333, 0), V(2.568425, -1.255842, 0), V(2.449428, -1.331016, 0), V(2.323062, -1.389904, 0), V(2.19191, -1.43682, 0), V(2.055174, -1.47137, 0), V(1.912334, -1.490691, 0), V(1.815157, -1.493407, 0), V(1.765916, -1.494784, 0)], [4, 1, 1, 1, 1, 1, 1, 1, 1, 1, 1, 1, 1, 1, 1, 1, 4], [0, 0.000151101, 0.000297418, 0.000440373, 0.000581168, 0.000721184, 0.000862257, 0.001005914, 0.001153033, 0.001300045, 0.001442855, 0.001582635, 0.001721473, 0.001860148, 0.002000007, 0.002143804, 0.002291516], False, 3, [1, 1, 1, 1, 1, 1, 1, 1, 1, 1, 1, 1, 1, 1, 1, 1, 1, 1, 1], False),
    Part.BSplineCurve([V(1.781181, 1.435986, 0), V(1.829863, 1.434645, 0), V(1.925647, 1.432008, 0), V(2.066374, 1.412269, 0), V(2.201194, 1.378864, 0), V(2.330946, 1.333037, 0), V(2.455254, 1.273456, 0), V(2.573511, 1.2, 0), V(2.685924, 1.113571, 0), V(2.79211, 1.015975, 0), V(2.889169, 0.908218, 0), V(2.973849, 0.792578, 0), V(3.047119, 0.671602, 0), V(3.105355, 0.543579, 0), V(3.151894, 0.409716, 0), V(3.183399, 0.269421, 0), V(3.203721, 0.123272, 0), V(3.206262, 0.023813, 0), V(3.207556, -0.026855, 0)], [4, 1, 1, 1, 1, 1, 1, 1, 1, 1, 1, 1, 1, 1, 1, 1, 4], [0, 0.000146018, 0.000287294, 0.000425304, 0.000562096, 0.000699402, 0.000838015, 0.000978963, 0.0011242, 0.001270122, 0.001413275, 0.001553619, 0.001693636, 0.001834431, 0.001978017, 0.002124335, 0.002276283], False, 3, [1, 1, 1, 1, 1, 1, 1, 1, 1, 1, 1, 1, 1, 1, 1, 1, 1, 1, 1], False),
    Part.BSplineCurve([V(0.851747, 1.110344, 0), V(0.885809, 1.13639, 0), V(0.953165, 1.187893, 0), V(1.06068, 1.253905, 0), V(1.171399, 1.310484, 0), V(1.286158, 1.356199, 0), V(1.404715, 1.392158, 0), V(1.527052, 1.417339, 0), V(1.652998, 1.433143, 0), V(1.738168, 1.435032, 0), V(1.781181, 1.435986, 0)], [4, 1, 1, 1, 1, 1, 1, 1, 4], [0, 0.000128564, 0.000254232, 0.000377869, 0.000501171, 0.00062431, 0.000749047, 0.00087548, 0.00100448], False, 3, [1, 1, 1, 1, 1, 1, 1, 1, 1, 1, 1], False),
    Part.BSplineCurve([V(0.331061, -0.020919, 0), V(0.33278, 0.037107, 0), V(0.33615, 0.150828, 0), V(0.359863, 0.316722, 0), V(0.400434, 0.473391, 0), V(0.459016, 0.620071, 0), V(0.531674, 0.75839, 0), V(0.621904, 0.886653, 0), V(0.728244, 1.005627, 0), V(0.810167, 1.075089, 0), V(0.851747, 1.110344, 0)], [4, 1, 1, 1, 1, 1, 1, 1, 4], [0, 0.000174052, 0.000341112, 0.00050155, 0.000658395, 0.000813933, 0.000969205, 0.001127733, 0.001291118], False, 3, [1, 1, 1, 1, 1, 1, 1, 1, 1, 1, 1], False),
    Part.BSplineCurve([V(1.765916, -1.494784, 0), V(1.716383, -1.493455, 0), V(1.618622, -1.490831, 0), V(1.475226, -1.470847, 0), V(1.337561, -1.438929, 0), V(1.206389, -1.392697, 0), V(1.081143, -1.333854, 0), V(0.9616, -1.262608, 0), V(0.849416, -1.176508, 0), V(0.743095, -1.080178, 0), V(0.647051, -0.972844, 0), V(0.562194, -0.857817, 0), V(0.491182, -0.73529, 0), V(0.431709, -0.6064, 0), V(0.386939, -0.469699, 0), V(0.35505, -0.326256, 0), V(0.334898, -0.175826, 0), V(0.332358, -0.073278, 0), V(0.331061, -0.020919, 0)], [4, 1, 1, 1, 1, 1, 1, 1, 1, 1, 1, 1, 1, 1, 1, 1, 4], [0, 0.000148559, 0.000293196, 0.000433479, 0.000571871, 0.00070958, 0.000848034, 0.000988469, 0.001133133, 0.001277857, 0.001419824, 0.001561198, 0.001701985, 0.001844919, 0.001991813, 0.002142335, 0.002299366], False, 3, [1, 1, 1, 1, 1, 1, 1, 1, 1, 1, 1, 1, 1, 1, 1, 1, 1, 1, 1], False),
], False)
sketch5.addConstraint([
    Sketcher.Constraint("Block", 0),
    Sketcher.Constraint("Block", 1),
    Sketcher.Constraint("Block", 2),
    Sketcher.Constraint("Block", 3),
    Sketcher.Constraint("Block", 4),
    Sketcher.Constraint("Block", 5),
    Sketcher.Constraint("Block", 6),
    Sketcher.Constraint("Block", 7),
    Sketcher.Constraint("Block", 8),
])
pad5 = doc.addObject("PartDesign::Pad", "Pad004")
body5.addObject(pad5)
pad5.Profile = sketch5
pad5.setExpression("Length", "Params.pad5_length")
body6 = doc.addObject("PartDesign::Body", "Body005")

sketch6 = doc.addObject("Sketcher::SketchObject", "Sketch005")
body6.addObject(sketch6)
sketch6.AttachmentSupport = (doc.getObject("XZ_Plane005"), [""])
sketch6.MapMode = "FlatFace"
sketch6.AttachmentOffset = App.Placement(V(0, 0, -0.25 * 25.4), App.Rotation())
sketch6.addGeometry([
    Part.LineSegment(V(5.612551, -2.146066, 0), V(4.727215, -2.146066, 0)),
    Part.LineSegment(V(4.727215, -2.146066, 0), V(4.727215, 2.087268, 0)),
    Part.LineSegment(V(4.727215, 2.087268, 0), V(5.487044, 2.087268, 0)),
    Part.LineSegment(V(5.487044, 2.087268, 0), V(5.487044, 0.241968, 0)),
    Part.LineSegment(V(5.487044, 0.241968, 0), V(5.744843, 0.241968, 0)),
    Part.LineSegment(V(5.744843, 0.241968, 0), V(6.677669, 2.087268, 0)),
    Part.LineSegment(V(6.677669, 2.087268, 0), V(7.5223, 2.087268, 0)),
    Part.LineSegment(V(7.5223, 2.087268, 0), V(6.545377, 0.15547, 0)),
    Part.BSplineCurve([V(7.332343, -0.943568, 0), V(7.331564, -0.910197, 0), V(7.330037, -0.844763, 0), V(7.32181, -0.748645, 0), V(7.306774, -0.656686, 0), V(7.284001, -0.569155, 0), V(7.257825, -0.484963, 0), V(7.223018, -0.405663, 0), V(7.183736, -0.330102, 0), V(7.137081, -0.259349, 0), V(7.085879, -0.191833, 0), V(7.026333, -0.130139, 0), V(6.962299, -0.070952, 0), V(6.890179, -0.01798, 0), V(6.813151, 0.032359, 0), V(6.729686, 0.07798, 0), V(6.640327, 0.120029, 0), V(6.577503, 0.143479, 0), V(6.545377, 0.15547, 0)], [4, 1, 1, 1, 1, 1, 1, 1, 1, 1, 1, 1, 1, 1, 1, 1, 4], [0, 0.000100124, 0.000196325, 0.000289175, 0.000379262, 0.000467493, 0.000553344, 0.000638696, 0.000722668, 0.000807309, 0.000892492, 0.000979541, 0.001068584, 0.001160554, 0.001255442, 0.001353703, 0.001456538], False, 3, [1, 1, 1, 1, 1, 1, 1, 1, 1, 1, 1, 1, 1, 1, 1, 1, 1, 1, 1], False),
    Part.BSplineCurve([V(5.612551, -2.146066, 0), V(5.671072, -2.145858, 0), V(5.783623, -2.145459, 0), V(5.945916, -2.139156, 0), V(6.095004, -2.130385, 0), V(6.231109, -2.117, 0), V(6.354171, -2.099253, 0), V(6.464315, -2.078333, 0), V(6.561537, -2.054489, 0), V(6.646657, -2.024779, 0), V(6.723473, -1.991265, 0), V(6.795077, -1.952758, 0), V(6.863047, -1.909686, 0), V(6.92693, -1.860914, 0), V(6.987281, -1.807322, 0), V(7.044213, -1.748854, 0), V(7.096923, -1.685016, 0), V(7.145083, -1.61621, 0), V(7.188977, -1.543827, 0), V(7.22777, -1.467769, 0), V(7.259316, -1.387982, 0), V(7.287191, -1.305619, 0), V(7.307268, -1.219504, 0), V(7.321232, -1.130474, 0), V(7.331455, -1.038216, 0), V(7.332043, -0.97554, 0), V(7.332343, -0.943568, 0)], [4, 1, 1, 1, 1, 1, 1, 1, 1, 1, 1, 1, 1, 1, 1, 1, 1, 1, 1, 1, 1, 1, 1, 1, 4], [0, 0.000175549, 0.00033763, 0.000487174, 0.000623534, 0.00074778, 0.000860044, 0.000959797, 0.001047763, 0.001130165, 0.001210977, 0.001291432, 0.001371318, 0.001451813, 0.001533373, 0.001615893, 0.001699886, 0.001785112, 0.001869685, 0.001955666, 0.002042285, 0.00213032, 0.002220522, 0.002312582, 0.002408443], False, 3, [1, 1, 1, 1, 1, 1, 1, 1, 1, 1, 1, 1, 1, 1, 1, 1, 1, 1, 1, 1, 1, 1, 1, 1, 1, 1, 1], False),
    Part.LineSegment(V(5.487044, -0.517861, 0), V(5.487044, -1.386237, 0)),
    Part.LineSegment(V(5.487044, -1.386237, 0), V(5.745691, -1.386237, 0)),
    Part.BSplineCurve([V(6.572514, -0.953745, 0), V(6.571652, -0.97618, 0), V(6.569959, -1.020251, 0), V(6.55316, -1.083697, 0), V(6.526419, -1.142421, 0), V(6.489765, -1.196157, 0), V(6.443603, -1.243266, 0), V(6.39063, -1.284792, 0), V(6.3297, -1.317628, 0), V(6.273284, -1.339287, 0), V(6.221959, -1.352245, 0), V(6.175639, -1.361902, 0), V(6.122001, -1.368746, 0), V(6.061003, -1.376005, 0), V(5.992802, -1.380712, 0), V(5.917025, -1.384147, 0), V(5.83389, -1.385553, 0), V(5.775937, -1.386002, 0), V(5.745691, -1.386237, 0)], [4, 1, 1, 1, 1, 1, 1, 1, 1, 1, 1, 1, 1, 1, 1, 1, 4], [0, 0.000067187, 0.000131976, 0.000195351, 0.000260035, 0.000326007, 0.000392499, 0.000461195, 0.000532856, 0.000573171, 0.000619905, 0.000674712, 0.000735303, 0.000804181, 0.000879731, 0.000962855, 0.001053597], False, 3, [1, 1, 1, 1, 1, 1, 1, 1, 1, 1, 1, 1, 1, 1, 1, 1, 1, 1, 1], False),
    Part.BSplineCurve([V(5.783004, -0.517861, 0), V(5.819187, -0.518268, 0), V(5.888471, -0.519048, 0), V(5.98811, -0.522668, 0), V(6.078607, -0.531389, 0), V(6.160348, -0.542408, 0), V(6.233747, -0.555131, 0), V(6.298148, -0.573363, 0), V(6.354543, -0.5929, 0), V(6.402265, -0.617179, 0), V(6.443037, -0.644789, 0), V(6.478241, -0.676155, 0), V(6.50736, -0.712457, 0), V(6.531327, -0.752709, 0), V(6.54997, -0.797267, 0), V(6.563578, -0.845641, 0), V(6.571183, -0.898382, 0), V(6.572058, -0.934781, 0), V(6.572514, -0.953745, 0)], [4, 1, 1, 1, 1, 1, 1, 1, 1, 1, 1, 1, 1, 1, 1, 1, 4], [0, 0.00010856, 0.00020787, 0.000299003, 0.000381157, 0.000455338, 0.000522203, 0.000581758, 0.000634096, 0.000682314, 0.000729148, 0.000774972, 0.000821366, 0.000869248, 0.000919453, 0.000971743, 0.001028617], False, 3, [1, 1, 1, 1, 1, 1, 1, 1, 1, 1, 1, 1, 1, 1, 1, 1, 1, 1, 1], False),
    Part.LineSegment(V(5.783004, -0.517861, 0), V(5.487044, -0.517861, 0)),
], False)
sketch6.addConstraint([
    Sketcher.Constraint("Block", 8),
    Sketcher.Constraint("Block", 9),
    Sketcher.Constraint("Block", 12),
    Sketcher.Constraint("Block", 13),
    Sketcher.Constraint("Coincident", 0, 2, 1, 1),
    Sketcher.Constraint("Coincident", 1, 2, 2, 1),
    Sketcher.Constraint("Coincident", 2, 2, 3, 1),
    Sketcher.Constraint("Coincident", 3, 2, 4, 1),
    Sketcher.Constraint("Coincident", 4, 2, 5, 1),
    Sketcher.Constraint("Coincident", 5, 2, 6, 1),
    Sketcher.Constraint("Coincident", 6, 2, 7, 1),
    Sketcher.Constraint("Coincident", 7, 2, 8, 2),
    Sketcher.Constraint("Coincident", 9, 1, 0, 1),
    Sketcher.Constraint("Coincident", 10, 2, 11, 1),
    Sketcher.Constraint("Coincident", 11, 2, 12, 2),
    Sketcher.Constraint("Coincident", 13, 1, 14, 1),
    Sketcher.Constraint("Coincident", 14, 2, 10, 1),
    Sketcher.Constraint("Horizontal", 0),
    Sketcher.Constraint("Vertical", 1),
    Sketcher.Constraint("Horizontal", 2),
    Sketcher.Constraint("Vertical", 3),
    Sketcher.Constraint("Horizontal", 4),
    Sketcher.Constraint("Horizontal", 6),
    Sketcher.Constraint("Vertical", 10),
    Sketcher.Constraint("Horizontal", 11),
    Sketcher.Constraint("Horizontal", 14),
    Sketcher.Constraint("Horizontal", 2, 2, 5, 2),
    Sketcher.Constraint("Vertical", 3, 2, 10, 2),
    Sketcher.Constraint("DistanceX", 2, 2, 5, 2, Q("0.046875 in")),
    Sketcher.Constraint("DistanceX", 4, 1, 4, 2, 0.257799),
    Sketcher.Constraint("DistanceY", 3, 2, 3, 1, 1.845299),
    Sketcher.Constraint("DistanceX", 2, 1, 2, 2, 0.759829),
    Sketcher.Constraint("DistanceX", 6, 1, 6, 2, 0.844631),
    Sketcher.Constraint("DistanceX", 14, 2, 14, 1, 0.29596),
    Sketcher.Constraint("DistanceY", 7, 2, 4, 2, 0.086498),
])
pad6 = doc.addObject("PartDesign::Pad", "Pad005")
body6.addObject(pad6)
pad6.Profile = sketch6
pad6.setExpression("Length", "Params.pad6_length")
body7 = doc.addObject("PartDesign::Body", "Body006")

sketch7 = doc.addObject("Sketcher::SketchObject", "Sketch006")
body7.addObject(sketch7)
sketch7.AttachmentSupport = (doc.getObject("XZ_Plane006"), [""])
sketch7.MapMode = "FlatFace"
sketch7.AttachmentOffset = App.Placement(V(0, 0, -0.25 * 25.4), App.Rotation())
sketch7.addGeometry([
    Part.LineSegment(V(11.4, -2.1, 0), V(10.2, -2.1, 0)),
    Part.LineSegment(V(10.2, -2.1, 0), V(9.8, -1.4, 0)),
    Part.LineSegment(V(9.8, -1.4, 0), V(10.6, -1.4, 0)),
    Part.LineSegment(V(10.6, -1.4, 0), V(10.6, 2.1, 0)),
    Part.LineSegment(V(10.6, 2.1, 0), V(11.4, 2.1, 0)),
    Part.LineSegment(V(11.4, 2.1, 0), V(11.4, -2.1, 0)),
], False)
sketch7.addConstraint([
    Sketcher.Constraint("Coincident", 0, 2, 1, 1),
    Sketcher.Constraint("Coincident", 1, 2, 2, 1),
    Sketcher.Constraint("Coincident", 2, 2, 3, 1),
    Sketcher.Constraint("Coincident", 3, 2, 4, 1),
    Sketcher.Constraint("Coincident", 4, 2, 5, 1),
    Sketcher.Constraint("Coincident", 5, 2, 0, 1),
    Sketcher.Constraint("Horizontal", 0),
    Sketcher.Constraint("Horizontal", 2),
    Sketcher.Constraint("Vertical", 3),
    Sketcher.Constraint("Horizontal", 4),
    Sketcher.Constraint("Vertical", 5),
    Sketcher.Constraint("DistanceX", 4, 1, 4, 2, 0.759829),
    Sketcher.Constraint("DistanceX", 0, 2, 0, 1, 1.174513),
    Sketcher.Constraint("DistanceX", 2, 1, 2, 2, 0.868376),
    Sketcher.Constraint("DistanceY", 3, 1, 3, 2, 3.527778),
    Sketcher.Constraint("DistanceY", 5, 2, 5, 1, 4.233333),
    Sketcher.Constraint("DistanceX", -1, 1, 1, 2, 9.77465),
    Sketcher.Constraint("DistanceY", 1, 2, -1, 1, 1.44051),
])
pad7 = doc.addObject("PartDesign::Pad", "Pad006")
body7.addObject(pad7)
pad7.Profile = sketch7
pad7.setExpression("Length", "Params.pad7_length")

doc.recompute()
